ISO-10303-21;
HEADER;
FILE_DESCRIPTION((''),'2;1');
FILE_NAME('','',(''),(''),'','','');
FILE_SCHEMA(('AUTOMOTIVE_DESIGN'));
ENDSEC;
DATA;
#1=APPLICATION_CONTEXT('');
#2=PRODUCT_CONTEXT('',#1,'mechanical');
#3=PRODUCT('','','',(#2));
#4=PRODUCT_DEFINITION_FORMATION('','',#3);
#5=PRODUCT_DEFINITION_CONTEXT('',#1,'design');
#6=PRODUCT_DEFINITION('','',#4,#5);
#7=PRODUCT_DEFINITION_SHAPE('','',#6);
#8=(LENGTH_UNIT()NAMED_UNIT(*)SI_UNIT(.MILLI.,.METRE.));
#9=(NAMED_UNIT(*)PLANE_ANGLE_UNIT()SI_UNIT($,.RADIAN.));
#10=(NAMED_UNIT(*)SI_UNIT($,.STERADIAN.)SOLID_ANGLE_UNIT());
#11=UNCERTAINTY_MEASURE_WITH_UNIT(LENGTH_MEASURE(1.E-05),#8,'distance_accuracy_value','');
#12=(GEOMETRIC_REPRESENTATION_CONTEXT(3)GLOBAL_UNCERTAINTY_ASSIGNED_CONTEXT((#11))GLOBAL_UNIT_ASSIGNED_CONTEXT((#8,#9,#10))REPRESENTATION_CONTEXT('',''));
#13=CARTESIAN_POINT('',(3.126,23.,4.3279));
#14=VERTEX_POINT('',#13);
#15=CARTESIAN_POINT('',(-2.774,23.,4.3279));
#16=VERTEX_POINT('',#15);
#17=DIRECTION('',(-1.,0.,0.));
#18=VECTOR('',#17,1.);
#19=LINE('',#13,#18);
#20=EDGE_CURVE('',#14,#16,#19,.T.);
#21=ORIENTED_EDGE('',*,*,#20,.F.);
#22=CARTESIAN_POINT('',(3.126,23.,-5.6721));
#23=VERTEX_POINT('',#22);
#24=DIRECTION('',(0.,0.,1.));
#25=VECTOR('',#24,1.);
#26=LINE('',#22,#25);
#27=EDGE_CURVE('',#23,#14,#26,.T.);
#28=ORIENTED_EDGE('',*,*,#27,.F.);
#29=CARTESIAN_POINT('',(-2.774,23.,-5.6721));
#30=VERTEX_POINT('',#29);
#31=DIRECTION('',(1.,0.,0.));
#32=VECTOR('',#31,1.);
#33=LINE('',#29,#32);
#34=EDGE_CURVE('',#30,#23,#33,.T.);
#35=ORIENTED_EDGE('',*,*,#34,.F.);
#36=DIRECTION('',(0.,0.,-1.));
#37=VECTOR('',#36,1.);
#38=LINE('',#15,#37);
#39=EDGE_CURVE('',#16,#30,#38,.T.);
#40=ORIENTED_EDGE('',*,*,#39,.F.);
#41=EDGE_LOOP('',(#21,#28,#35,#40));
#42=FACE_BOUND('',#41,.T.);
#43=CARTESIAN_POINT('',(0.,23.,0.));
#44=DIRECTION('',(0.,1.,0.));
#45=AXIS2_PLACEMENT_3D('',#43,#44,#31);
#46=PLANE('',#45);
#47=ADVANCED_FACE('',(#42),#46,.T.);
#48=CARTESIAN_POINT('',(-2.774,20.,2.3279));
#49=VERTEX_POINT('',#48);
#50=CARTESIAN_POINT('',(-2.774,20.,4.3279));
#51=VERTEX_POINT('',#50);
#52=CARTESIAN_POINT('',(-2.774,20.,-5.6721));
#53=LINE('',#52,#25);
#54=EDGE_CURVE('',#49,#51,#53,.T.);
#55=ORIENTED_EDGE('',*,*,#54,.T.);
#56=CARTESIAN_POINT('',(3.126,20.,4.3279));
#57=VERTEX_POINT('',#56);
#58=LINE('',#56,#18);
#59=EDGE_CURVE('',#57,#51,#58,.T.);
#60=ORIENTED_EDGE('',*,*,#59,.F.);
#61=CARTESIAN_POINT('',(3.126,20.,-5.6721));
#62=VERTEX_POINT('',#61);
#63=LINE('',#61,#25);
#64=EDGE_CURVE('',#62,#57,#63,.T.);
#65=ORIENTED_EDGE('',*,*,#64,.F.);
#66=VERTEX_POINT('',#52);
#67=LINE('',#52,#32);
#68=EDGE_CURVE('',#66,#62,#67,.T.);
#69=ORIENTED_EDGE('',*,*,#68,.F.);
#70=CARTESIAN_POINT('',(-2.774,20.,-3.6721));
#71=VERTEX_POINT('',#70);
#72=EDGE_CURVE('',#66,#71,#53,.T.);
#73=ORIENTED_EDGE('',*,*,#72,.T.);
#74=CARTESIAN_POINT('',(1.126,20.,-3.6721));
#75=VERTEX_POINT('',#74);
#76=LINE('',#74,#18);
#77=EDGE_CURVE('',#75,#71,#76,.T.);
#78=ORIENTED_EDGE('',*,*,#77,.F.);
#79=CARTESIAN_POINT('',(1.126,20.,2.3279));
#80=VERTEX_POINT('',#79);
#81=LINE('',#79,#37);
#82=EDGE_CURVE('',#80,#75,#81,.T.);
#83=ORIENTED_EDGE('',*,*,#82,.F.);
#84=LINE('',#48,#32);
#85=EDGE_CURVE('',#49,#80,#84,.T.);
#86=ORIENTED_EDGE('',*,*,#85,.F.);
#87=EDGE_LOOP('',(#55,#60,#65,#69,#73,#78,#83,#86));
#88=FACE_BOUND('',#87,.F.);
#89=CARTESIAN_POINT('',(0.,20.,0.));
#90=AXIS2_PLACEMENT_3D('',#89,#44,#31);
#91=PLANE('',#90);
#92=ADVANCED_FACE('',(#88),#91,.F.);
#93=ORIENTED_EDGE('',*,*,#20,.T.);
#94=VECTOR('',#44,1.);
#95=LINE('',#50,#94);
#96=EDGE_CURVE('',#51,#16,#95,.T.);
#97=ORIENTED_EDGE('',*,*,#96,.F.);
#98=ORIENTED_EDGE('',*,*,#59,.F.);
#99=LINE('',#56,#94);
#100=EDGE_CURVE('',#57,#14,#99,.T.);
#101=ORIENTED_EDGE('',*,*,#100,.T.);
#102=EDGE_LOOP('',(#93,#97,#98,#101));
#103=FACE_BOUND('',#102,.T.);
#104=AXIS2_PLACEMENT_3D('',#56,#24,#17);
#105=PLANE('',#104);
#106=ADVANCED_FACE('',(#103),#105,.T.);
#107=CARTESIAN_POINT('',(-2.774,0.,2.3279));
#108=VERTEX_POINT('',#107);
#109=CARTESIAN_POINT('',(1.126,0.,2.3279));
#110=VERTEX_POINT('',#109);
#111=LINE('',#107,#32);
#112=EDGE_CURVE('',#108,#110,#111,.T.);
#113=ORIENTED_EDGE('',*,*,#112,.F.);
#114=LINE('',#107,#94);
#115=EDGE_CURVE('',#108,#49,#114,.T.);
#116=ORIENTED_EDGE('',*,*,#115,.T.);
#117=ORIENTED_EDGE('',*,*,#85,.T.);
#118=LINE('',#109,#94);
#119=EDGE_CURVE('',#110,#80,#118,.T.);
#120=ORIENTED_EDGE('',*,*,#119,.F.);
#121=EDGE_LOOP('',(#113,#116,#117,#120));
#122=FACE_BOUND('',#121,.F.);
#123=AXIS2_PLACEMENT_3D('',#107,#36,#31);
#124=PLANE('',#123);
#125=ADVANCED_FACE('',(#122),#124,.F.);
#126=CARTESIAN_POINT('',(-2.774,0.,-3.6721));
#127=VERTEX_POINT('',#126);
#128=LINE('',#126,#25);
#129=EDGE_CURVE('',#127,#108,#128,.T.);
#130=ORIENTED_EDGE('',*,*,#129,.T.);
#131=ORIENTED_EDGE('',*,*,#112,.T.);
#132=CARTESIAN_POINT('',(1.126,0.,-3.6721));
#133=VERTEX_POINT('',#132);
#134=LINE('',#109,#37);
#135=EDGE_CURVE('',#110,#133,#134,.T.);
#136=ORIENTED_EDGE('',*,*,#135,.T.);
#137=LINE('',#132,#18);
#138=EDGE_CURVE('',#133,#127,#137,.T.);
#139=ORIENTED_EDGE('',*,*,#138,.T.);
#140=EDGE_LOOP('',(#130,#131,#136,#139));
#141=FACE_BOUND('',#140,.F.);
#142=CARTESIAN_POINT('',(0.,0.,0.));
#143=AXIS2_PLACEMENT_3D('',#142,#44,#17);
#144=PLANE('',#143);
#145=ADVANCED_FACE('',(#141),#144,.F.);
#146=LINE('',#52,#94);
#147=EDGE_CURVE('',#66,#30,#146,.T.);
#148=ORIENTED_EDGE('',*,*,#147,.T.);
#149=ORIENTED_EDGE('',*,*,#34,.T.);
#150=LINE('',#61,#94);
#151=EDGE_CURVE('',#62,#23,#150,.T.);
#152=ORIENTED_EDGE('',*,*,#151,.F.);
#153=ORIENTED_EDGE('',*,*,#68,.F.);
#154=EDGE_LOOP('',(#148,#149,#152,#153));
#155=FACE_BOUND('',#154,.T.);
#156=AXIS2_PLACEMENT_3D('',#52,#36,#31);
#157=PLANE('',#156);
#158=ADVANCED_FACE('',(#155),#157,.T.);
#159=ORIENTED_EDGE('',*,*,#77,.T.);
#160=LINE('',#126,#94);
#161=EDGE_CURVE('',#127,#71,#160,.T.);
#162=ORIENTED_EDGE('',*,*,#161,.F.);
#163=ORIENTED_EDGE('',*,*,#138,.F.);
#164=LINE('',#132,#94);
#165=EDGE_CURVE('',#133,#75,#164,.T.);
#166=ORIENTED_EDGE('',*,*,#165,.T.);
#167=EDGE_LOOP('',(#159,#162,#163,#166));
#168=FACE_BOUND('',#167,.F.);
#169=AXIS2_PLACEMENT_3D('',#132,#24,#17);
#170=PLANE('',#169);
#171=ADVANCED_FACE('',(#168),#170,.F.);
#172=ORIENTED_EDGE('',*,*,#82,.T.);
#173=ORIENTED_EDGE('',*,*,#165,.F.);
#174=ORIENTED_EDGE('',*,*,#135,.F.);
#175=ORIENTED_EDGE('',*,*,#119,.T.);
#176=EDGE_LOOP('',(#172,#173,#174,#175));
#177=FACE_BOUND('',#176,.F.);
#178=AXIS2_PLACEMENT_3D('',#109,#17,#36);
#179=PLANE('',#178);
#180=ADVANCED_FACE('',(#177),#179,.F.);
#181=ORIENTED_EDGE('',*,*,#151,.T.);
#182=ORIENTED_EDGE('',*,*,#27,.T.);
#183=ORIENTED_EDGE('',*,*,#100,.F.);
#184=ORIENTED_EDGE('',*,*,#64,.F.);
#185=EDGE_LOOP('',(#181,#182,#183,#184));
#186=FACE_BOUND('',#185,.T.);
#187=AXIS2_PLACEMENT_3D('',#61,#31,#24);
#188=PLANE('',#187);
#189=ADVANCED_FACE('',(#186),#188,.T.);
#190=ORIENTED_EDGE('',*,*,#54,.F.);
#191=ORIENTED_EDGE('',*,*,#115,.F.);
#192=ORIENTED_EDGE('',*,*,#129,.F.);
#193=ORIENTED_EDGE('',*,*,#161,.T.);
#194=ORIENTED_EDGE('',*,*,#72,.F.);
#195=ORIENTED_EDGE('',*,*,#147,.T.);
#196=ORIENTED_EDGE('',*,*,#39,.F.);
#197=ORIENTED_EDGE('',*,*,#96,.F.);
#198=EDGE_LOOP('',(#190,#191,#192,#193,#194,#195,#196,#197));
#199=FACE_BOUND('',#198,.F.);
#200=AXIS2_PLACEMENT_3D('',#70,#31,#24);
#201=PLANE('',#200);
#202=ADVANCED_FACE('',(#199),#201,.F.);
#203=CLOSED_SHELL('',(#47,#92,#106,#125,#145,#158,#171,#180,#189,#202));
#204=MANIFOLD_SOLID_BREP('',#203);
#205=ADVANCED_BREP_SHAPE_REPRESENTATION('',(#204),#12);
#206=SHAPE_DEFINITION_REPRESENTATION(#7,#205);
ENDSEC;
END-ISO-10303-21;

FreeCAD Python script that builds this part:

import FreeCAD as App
import Part
import Sketcher

doc = App.newDocument("Part")
body = doc.addObject("PartDesign::Body", "Body")

sketch1 = body.newObject("Sketcher::SketchObject", "Sketch")
sketch1.AttachmentSupport = (doc.getObject("XZ_Plane"), [""])
sketch1.MapMode = "FlatFace"
sketch1.addGeometry(Part.LineSegment(App.Vector(-2.8, -3.7, 0), App.Vector(-2.8, 2.3, 0)), False)
sketch1.addGeometry(Part.LineSegment(App.Vector(-2.8, 2.3, 0), App.Vector(1.1, 2.3, 0)), False)
sketch1.addGeometry(Part.LineSegment(App.Vector(1.1, 2.3, 0), App.Vector(1.1, -3.7, 0)), False)
sketch1.addGeometry(Part.LineSegment(App.Vector(1.1, -3.7, 0), App.Vector(-2.8, -3.7, 0)), False)
sketch1.addConstraint(Sketcher.Constraint("Coincident", 0, 2, 1, 1))
sketch1.addConstraint(Sketcher.Constraint("Coincident", 1, 2, 2, 1))
sketch1.addConstraint(Sketcher.Constraint("Coincident", 2, 2, 3, 1))
sketch1.addConstraint(Sketcher.Constraint("Coincident", 3, 2, 0, 1))
sketch1.addConstraint(Sketcher.Constraint("Vertical", 0))
sketch1.addConstraint(Sketcher.Constraint("Horizontal", 1))
sketch1.addConstraint(Sketcher.Constraint("Vertical", 2))
sketch1.addConstraint(Sketcher.Constraint("Horizontal", 3))
sketch1.addConstraint(Sketcher.Constraint("DistanceY", 0, 1, 0, 2, 6.0))
sketch1.addConstraint(Sketcher.Constraint("DistanceX", 1, 1, 1, 2, 3.9))
sketch1.addConstraint(Sketcher.Constraint("DistanceX", 0, 2, -1, 1, 2.774))
sketch1.addConstraint(Sketcher.Constraint("DistanceY", -1, 1, 0, 2, 2.328))
pad1 = body.newObject("PartDesign::Pad", "Pad")
pad1.Profile = sketch1
pad1.Length = 20
pad1.Reversed = True

sketch2 = body.newObject("Sketcher::SketchObject", "Sketch001")
sketch2.AttachmentSupport = (doc.getObject("XZ_Plane"), [""])
sketch2.MapMode = "FlatFace"
sketch2.AttachmentOffset = App.Placement(App.Vector(0, 0, -20), App.Rotation())
sketch2.addGeometry(Part.LineSegment(App.Vector(-3, 4, 0), App.Vector(3, 4, 0)), False)
sketch2.addGeometry(Part.LineSegment(App.Vector(3, 4, 0), App.Vector(3, -6, 0)), False)
sketch2.addGeometry(Part.LineSegment(App.Vector(3, -6, 0), App.Vector(-3, -6, 0)), False)
sketch2.addGeometry(Part.LineSegment(App.Vector(-3, -6, 0), App.Vector(-3, 4, 0)), False)
sketch2.addConstraint(Sketcher.Constraint("Coincident", 0, 2, 1, 1))
sketch2.addConstraint(Sketcher.Constraint("Coincident", 1, 2, 2, 1))
sketch2.addConstraint(Sketcher.Constraint("Coincident", 2, 2, 3, 1))
sketch2.addConstraint(Sketcher.Constraint("Coincident", 3, 2, 0, 1))
sketch2.addConstraint(Sketcher.Constraint("Horizontal", 0))
sketch2.addConstraint(Sketcher.Constraint("Vertical", 1))
sketch2.addConstraint(Sketcher.Constraint("Horizontal", 2))
sketch2.addConstraint(Sketcher.Constraint("Vertical", 3))
sketch2.addConstraint(Sketcher.Constraint("DistanceY", 1, 2, 1, 1, 10.0))
sketch2.addConstraint(Sketcher.Constraint("DistanceX", 0, 1, 0, 2, 5.9))
sketch2.addConstraint(Sketcher.Constraint("DistanceX", -1, 1, 0, 2, 3.126))
sketch2.addConstraint(Sketcher.Constraint("DistanceY", -1, 1, 0, 2, 4.328))
pad2 = body.newObject("PartDesign::Pad", "Pad001")
pad2.Profile = sketch2
pad2.Length = 3
pad2.Reversed = True

doc.recompute()
